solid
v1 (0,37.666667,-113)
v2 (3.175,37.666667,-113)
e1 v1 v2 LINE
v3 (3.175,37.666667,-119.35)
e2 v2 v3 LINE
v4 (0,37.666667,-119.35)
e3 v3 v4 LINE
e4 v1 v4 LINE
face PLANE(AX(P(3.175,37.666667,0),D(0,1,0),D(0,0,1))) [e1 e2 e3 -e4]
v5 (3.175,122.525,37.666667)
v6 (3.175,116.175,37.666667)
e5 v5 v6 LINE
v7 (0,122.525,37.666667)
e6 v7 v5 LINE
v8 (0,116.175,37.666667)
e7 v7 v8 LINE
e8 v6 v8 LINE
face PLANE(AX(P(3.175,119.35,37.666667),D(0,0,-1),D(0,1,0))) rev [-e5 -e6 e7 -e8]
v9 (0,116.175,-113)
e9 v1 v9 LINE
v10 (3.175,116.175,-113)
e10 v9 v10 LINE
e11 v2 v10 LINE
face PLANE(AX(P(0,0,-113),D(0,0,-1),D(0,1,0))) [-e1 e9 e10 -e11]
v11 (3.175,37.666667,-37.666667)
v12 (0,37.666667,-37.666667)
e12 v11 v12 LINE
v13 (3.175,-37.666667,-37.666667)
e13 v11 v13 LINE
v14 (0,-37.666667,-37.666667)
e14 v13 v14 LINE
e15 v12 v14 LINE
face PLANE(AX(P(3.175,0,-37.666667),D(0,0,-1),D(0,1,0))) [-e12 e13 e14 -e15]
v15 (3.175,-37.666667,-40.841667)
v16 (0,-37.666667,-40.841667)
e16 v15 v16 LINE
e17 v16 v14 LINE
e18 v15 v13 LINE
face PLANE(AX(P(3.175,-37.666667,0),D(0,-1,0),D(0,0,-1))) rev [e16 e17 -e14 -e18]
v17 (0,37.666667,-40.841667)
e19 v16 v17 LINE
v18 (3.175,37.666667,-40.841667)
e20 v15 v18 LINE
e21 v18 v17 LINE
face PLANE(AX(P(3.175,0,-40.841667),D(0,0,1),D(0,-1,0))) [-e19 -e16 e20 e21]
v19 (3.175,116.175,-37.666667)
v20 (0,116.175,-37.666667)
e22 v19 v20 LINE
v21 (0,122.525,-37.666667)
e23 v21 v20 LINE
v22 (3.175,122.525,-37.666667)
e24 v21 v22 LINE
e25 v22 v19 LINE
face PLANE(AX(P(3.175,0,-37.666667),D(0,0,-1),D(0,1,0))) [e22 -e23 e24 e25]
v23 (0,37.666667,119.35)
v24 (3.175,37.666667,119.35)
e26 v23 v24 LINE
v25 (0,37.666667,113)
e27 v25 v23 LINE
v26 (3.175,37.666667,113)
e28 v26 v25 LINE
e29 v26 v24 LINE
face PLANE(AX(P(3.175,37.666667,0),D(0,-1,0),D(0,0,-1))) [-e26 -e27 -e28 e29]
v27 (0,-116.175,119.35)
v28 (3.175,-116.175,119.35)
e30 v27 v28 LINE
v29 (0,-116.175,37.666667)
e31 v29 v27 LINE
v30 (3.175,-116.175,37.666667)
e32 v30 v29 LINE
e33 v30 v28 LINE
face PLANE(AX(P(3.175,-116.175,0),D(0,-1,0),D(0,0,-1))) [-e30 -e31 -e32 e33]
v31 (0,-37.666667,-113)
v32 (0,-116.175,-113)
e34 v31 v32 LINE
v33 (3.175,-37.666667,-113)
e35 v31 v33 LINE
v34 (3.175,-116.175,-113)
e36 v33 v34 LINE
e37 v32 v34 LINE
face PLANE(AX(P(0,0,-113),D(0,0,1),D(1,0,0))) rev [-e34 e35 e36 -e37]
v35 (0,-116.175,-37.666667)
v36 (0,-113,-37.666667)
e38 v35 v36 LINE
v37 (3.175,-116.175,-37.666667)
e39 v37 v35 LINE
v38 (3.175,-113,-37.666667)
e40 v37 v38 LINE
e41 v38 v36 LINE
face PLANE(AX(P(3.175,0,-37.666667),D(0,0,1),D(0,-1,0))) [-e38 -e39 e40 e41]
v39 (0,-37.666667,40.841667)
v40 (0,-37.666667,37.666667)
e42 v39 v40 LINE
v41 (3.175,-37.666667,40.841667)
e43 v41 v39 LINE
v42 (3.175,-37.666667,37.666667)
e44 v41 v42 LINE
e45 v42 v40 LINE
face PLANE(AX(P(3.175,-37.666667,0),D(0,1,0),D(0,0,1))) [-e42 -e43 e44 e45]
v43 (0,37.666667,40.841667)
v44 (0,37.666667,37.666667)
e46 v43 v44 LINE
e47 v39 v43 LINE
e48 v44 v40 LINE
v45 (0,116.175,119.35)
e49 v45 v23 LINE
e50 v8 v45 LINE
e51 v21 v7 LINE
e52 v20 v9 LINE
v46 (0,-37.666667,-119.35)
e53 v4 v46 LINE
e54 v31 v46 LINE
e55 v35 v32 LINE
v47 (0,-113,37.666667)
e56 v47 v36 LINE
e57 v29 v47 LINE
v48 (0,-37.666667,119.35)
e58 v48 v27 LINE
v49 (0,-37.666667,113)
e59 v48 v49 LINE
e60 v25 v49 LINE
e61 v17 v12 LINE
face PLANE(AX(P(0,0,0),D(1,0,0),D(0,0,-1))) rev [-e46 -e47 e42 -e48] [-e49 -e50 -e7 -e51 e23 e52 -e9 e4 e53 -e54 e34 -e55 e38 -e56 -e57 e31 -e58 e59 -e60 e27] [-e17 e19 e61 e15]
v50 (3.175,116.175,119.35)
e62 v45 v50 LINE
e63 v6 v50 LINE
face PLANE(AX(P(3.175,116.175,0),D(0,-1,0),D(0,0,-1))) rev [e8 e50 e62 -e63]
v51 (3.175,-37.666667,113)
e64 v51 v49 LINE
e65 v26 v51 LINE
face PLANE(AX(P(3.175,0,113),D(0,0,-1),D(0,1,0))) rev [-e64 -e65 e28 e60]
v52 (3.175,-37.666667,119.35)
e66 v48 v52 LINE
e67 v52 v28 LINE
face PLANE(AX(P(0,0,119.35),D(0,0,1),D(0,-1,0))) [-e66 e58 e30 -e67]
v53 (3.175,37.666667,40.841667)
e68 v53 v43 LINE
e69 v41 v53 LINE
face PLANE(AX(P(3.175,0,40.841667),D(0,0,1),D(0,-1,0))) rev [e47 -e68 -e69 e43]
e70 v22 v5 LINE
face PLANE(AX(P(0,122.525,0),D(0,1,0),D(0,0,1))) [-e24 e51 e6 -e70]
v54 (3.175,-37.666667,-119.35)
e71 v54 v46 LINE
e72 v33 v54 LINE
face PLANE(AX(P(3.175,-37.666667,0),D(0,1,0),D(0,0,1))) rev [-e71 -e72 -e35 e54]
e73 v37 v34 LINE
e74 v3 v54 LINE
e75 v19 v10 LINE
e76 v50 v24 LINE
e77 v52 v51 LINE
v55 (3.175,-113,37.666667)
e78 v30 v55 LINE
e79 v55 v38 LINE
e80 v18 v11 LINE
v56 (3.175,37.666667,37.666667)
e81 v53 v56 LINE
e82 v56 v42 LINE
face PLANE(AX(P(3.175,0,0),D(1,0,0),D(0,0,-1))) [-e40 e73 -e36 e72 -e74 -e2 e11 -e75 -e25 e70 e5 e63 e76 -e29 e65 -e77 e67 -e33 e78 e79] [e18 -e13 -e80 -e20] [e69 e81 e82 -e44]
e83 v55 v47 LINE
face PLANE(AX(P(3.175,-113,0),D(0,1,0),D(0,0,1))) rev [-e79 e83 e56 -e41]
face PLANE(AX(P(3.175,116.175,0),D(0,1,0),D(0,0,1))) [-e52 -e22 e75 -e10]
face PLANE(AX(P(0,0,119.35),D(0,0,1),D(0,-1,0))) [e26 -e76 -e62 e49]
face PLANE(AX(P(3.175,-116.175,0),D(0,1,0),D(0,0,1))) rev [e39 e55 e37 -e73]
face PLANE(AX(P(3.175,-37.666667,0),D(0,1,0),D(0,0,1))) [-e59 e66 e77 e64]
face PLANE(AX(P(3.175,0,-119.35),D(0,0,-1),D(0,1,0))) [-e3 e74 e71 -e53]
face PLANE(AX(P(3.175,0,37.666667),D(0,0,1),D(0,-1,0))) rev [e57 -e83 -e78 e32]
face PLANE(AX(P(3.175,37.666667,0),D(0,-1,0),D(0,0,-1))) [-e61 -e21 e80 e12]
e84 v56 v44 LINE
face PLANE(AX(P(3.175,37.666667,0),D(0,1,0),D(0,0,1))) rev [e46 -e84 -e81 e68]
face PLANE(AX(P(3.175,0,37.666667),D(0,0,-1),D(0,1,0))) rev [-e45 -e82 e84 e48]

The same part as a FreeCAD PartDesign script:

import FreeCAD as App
import Part
import Sketcher
from FreeCAD import Vector
Q = App.Units.Quantity


def add_polygon(sketch, points):
    """Adds a closed chain of lines whose ends are joined by coincident constraints."""
    first, n = sketch.GeometryCount, len(points)
    for a, b in zip(points, points[1:] + points[:1]):
        sketch.addGeometry(Part.LineSegment(App.Vector(*a, 0), App.Vector(*b, 0)), False)
    for i in range(n):
        sketch.addConstraint(Sketcher.Constraint("Coincident", first + i, 2, first + (i + 1) % n, 1))

doc = App.newDocument("Part")
body = doc.addObject("PartDesign::Body", "Body")

sketch1 = body.newObject("Sketcher::SketchObject", "Sketch")
sketch1.AttachmentSupport = (doc.getObject("YZ_Plane"), [""])
sketch1.MapMode = "FlatFace"
add_polygon(sketch1, [(37.666667, 113), (-37.666667, 113), (-37.666667, 116.175), (-116.175, 116.175), (-116.175, 37.666667), (-113, 37.666667), (-113, -37.666667), (-116.175, -37.666667), (-116.175, -116.175), (-37.666667, -116.175), (-37.666667, -119.35), (37.666667, -119.35), (37.666667, -116.175), (116.175, -116.175), (116.175, -37.666667), (119.35, -37.666667), (119.35, 37.666667), (116.175, 37.666667), (116.175, 116.175), (37.666667, 116.175)])
add_polygon(sketch1, [(-37.666667, 37.666667), (-37.666667, 40.841667), (37.666667, 40.841667), (37.666667, 37.666667)])
add_polygon(sketch1, [(-37.666667, -40.841667), (-37.666667, -37.666667), (37.666667, -37.666667), (37.666667, -40.841667)])
sketch1.addConstraint([
    Sketcher.Constraint("Horizontal", 0),
    Sketcher.Constraint("Vertical", 1),
    Sketcher.Constraint("Horizontal", 2),
    Sketcher.Constraint("Vertical", 3),
    Sketcher.Constraint("Horizontal", 4),
    Sketcher.Constraint("Vertical", 5),
    Sketcher.Constraint("Horizontal", 6),
    Sketcher.Constraint("Vertical", 7),
    Sketcher.Constraint("Horizontal", 8),
    Sketcher.Constraint("Vertical", 9),
    Sketcher.Constraint("Horizontal", 10),
    Sketcher.Constraint("Vertical", 11),
    Sketcher.Constraint("Horizontal", 12),
    Sketcher.Constraint("Vertical", 13),
    Sketcher.Constraint("Horizontal", 14),
    Sketcher.Constraint("Vertical", 15),
    Sketcher.Constraint("Horizontal", 16),
    Sketcher.Constraint("Vertical", 17),
    Sketcher.Constraint("Horizontal", 18),
    Sketcher.Constraint("Vertical", 19),
    Sketcher.Constraint("Vertical", 20),
    Sketcher.Constraint("Horizontal", 21),
    Sketcher.Constraint("Vertical", 22),
    Sketcher.Constraint("Horizontal", 23),
    Sketcher.Constraint("Vertical", 24),
    Sketcher.Constraint("Horizontal", 25),
    Sketcher.Constraint("Vertical", 26),
    Sketcher.Constraint("Horizontal", 27),
    Sketcher.Constraint("Symmetric", 1, 2, 11, 2, -1, 1),
    Sketcher.Constraint("Symmetric", 3, 2, 13, 2, -1, 1),
    Sketcher.Constraint("Symmetric", 6, 2, 16, 2, -1, 1),
    Sketcher.Constraint("Symmetric", 8, 2, 18, 2, -1, 1),
    Sketcher.Constraint("Symmetric", 22, 2, 24, 2, -1, 1),
    Sketcher.Constraint("Symmetric", 20, 2, 26, 2, -1, 1),
    Sketcher.Constraint("Symmetric", 8, 2, 11, 2, -2),
    Sketcher.Constraint("Symmetric", 6, 2, 13, 2, -2),
    Sketcher.Constraint("Horizontal", 16, 2, 22, 2),
    Sketcher.Constraint("Vertical", 9, 2, 20, 2),
    Sketcher.Constraint("Vertical", 19, 2, 21, 2),
    Sketcher.Constraint("Equal", 6, 14),
    Sketcher.Constraint("Equal", 16, 1),
    Sketcher.Constraint("Equal", 18, 3),
    Sketcher.Constraint("Equal", 27, 5),
    Sketcher.Constraint("Equal", 1, 9),
    Sketcher.Constraint("Equal", 19, 20),
    Sketcher.Constraint("DistanceX", 4, 1, 4, 2, Q("0.125 in")),
    Sketcher.Constraint("DistanceY", -1, 1, 0, 2, Q("113 mm")),
    Sketcher.Constraint("DistanceX", 0, 2, 0, 1, Q("75.333333 mm")),
])
pad1 = body.newObject("PartDesign::Pad", "Pad")
pad1.Profile = sketch1
pad1.Length = Q("0.125 in")

sketch2 = body.newObject("Sketcher::SketchObject", "Sketch001")
sketch2.AttachmentSupport = (doc.getObject("YZ_Plane"), [""])
sketch2.MapMode = "FlatFace"
sketch2.AttachmentOffset = App.Placement(Vector(0, 0, 0.125 * 25.4), App.Rotation())
add_polygon(sketch2, [(116.175, 119.35), (37.666667, 119.35), (37.666667, 116.175), (116.175, 116.175)])
add_polygon(sketch2, [(-37.666667, 119.35), (-116.175, 119.35), (-116.175, 116.175), (-37.666667, 116.175)])
add_polygon(sketch2, [(122.525, 37.666667), (119.35, 37.666667), (119.35, -37.666667), (122.525, -37.666667)])
sketch2.addConstraint([
    Sketcher.Constraint("Horizontal", 0),
    Sketcher.Constraint("Vertical", 1),
    Sketcher.Constraint("Horizontal", 2),
    Sketcher.Constraint("Vertical", 3),
    Sketcher.Constraint("Horizontal", 4),
    Sketcher.Constraint("Vertical", 5),
    Sketcher.Constraint("Horizontal", 6),
    Sketcher.Constraint("Vertical", 7),
    Sketcher.Constraint("Horizontal", 8),
    Sketcher.Constraint("Vertical", 9),
    Sketcher.Constraint("Horizontal", 10),
    Sketcher.Constraint("Vertical", 11),
    Sketcher.Constraint("Symmetric", 3, 2, 4, 2, -2),
    Sketcher.Constraint("Symmetric", 1, 2, 6, 2, -2),
    Sketcher.Constraint("Equal", 10, 1),
    Sketcher.Constraint("DistanceX", 8, 2, 8, 1, Q("0.125 in")),
    Sketcher.Constraint("DistanceX", 2, 2, 10, 2, Q("0.25 in")),
    Sketcher.Constraint("DistanceY", -1, 1, 0, 2, Q("119.35 mm")),
    Sketcher.Constraint("DistanceX", -1, 1, 2, 2, Q("116.175 mm")),
    Sketcher.Constraint("DistanceX", 0, 2, 0, 1, Q("78.508333 mm")),
    Sketcher.Constraint("DistanceY", 9, 2, 9, 1, Q("75.333333 mm")),
    Sketcher.Constraint("DistanceY", -1, 1, 8, 2, Q("37.666667 mm")),
])
pad2 = body.newObject("PartDesign::Pad", "Pad001")
pad2.Profile = sketch2
pad2.Length = Q("0.125 in")
pad2.Reversed = True

sketch3 = body.newObject("Sketcher::SketchObject", "Sketch002")
sketch3.AttachmentSupport = (doc.getObject("YZ_Plane"), [""])
sketch3.MapMode = "FlatFace"
sketch3.AttachmentOffset = App.Placement(Vector(0, 0, 0.125 * 25.4), App.Rotation())
add_polygon(sketch3, [(116.175, -113), (37.666667, -113), (37.666667, -116.175), (116.175, -116.175)])
add_polygon(sketch3, [(-37.666667, -113), (-116.175, -113), (-116.175, -116.175), (-37.666667, -116.175)])
sketch3.addConstraint([
    Sketcher.Constraint("Horizontal", 0),
    Sketcher.Constraint("Vertical", 1),
    Sketcher.Constraint("Horizontal", 2),
    Sketcher.Constraint("Vertical", 3),
    Sketcher.Constraint("Horizontal", 4),
    Sketcher.Constraint("Vertical", 5),
    Sketcher.Constraint("Horizontal", 6),
    Sketcher.Constraint("Vertical", 7),
    Sketcher.Constraint("Symmetric", 3, 2, 4, 2, -2),
    Sketcher.Constraint("Symmetric", 1, 2, 6, 2, -2),
    Sketcher.Constraint("DistanceY", 1, 2, 1, 1, Q("0.125 in")),
    Sketcher.Constraint("DistanceY", 0, 2, -1, 1, Q("113 mm")),
    Sketcher.Constraint("DistanceX", -1, 1, 2, 2, Q("116.175 mm")),
    Sketcher.Constraint("DistanceX", 0, 2, 0, 1, Q("78.508333 mm")),
])
pocket1 = body.newObject("PartDesign::Pocket", "Pocket")
pocket1.Profile = sketch3
pocket1.Length = Q("0.125 in")

doc.recompute()
